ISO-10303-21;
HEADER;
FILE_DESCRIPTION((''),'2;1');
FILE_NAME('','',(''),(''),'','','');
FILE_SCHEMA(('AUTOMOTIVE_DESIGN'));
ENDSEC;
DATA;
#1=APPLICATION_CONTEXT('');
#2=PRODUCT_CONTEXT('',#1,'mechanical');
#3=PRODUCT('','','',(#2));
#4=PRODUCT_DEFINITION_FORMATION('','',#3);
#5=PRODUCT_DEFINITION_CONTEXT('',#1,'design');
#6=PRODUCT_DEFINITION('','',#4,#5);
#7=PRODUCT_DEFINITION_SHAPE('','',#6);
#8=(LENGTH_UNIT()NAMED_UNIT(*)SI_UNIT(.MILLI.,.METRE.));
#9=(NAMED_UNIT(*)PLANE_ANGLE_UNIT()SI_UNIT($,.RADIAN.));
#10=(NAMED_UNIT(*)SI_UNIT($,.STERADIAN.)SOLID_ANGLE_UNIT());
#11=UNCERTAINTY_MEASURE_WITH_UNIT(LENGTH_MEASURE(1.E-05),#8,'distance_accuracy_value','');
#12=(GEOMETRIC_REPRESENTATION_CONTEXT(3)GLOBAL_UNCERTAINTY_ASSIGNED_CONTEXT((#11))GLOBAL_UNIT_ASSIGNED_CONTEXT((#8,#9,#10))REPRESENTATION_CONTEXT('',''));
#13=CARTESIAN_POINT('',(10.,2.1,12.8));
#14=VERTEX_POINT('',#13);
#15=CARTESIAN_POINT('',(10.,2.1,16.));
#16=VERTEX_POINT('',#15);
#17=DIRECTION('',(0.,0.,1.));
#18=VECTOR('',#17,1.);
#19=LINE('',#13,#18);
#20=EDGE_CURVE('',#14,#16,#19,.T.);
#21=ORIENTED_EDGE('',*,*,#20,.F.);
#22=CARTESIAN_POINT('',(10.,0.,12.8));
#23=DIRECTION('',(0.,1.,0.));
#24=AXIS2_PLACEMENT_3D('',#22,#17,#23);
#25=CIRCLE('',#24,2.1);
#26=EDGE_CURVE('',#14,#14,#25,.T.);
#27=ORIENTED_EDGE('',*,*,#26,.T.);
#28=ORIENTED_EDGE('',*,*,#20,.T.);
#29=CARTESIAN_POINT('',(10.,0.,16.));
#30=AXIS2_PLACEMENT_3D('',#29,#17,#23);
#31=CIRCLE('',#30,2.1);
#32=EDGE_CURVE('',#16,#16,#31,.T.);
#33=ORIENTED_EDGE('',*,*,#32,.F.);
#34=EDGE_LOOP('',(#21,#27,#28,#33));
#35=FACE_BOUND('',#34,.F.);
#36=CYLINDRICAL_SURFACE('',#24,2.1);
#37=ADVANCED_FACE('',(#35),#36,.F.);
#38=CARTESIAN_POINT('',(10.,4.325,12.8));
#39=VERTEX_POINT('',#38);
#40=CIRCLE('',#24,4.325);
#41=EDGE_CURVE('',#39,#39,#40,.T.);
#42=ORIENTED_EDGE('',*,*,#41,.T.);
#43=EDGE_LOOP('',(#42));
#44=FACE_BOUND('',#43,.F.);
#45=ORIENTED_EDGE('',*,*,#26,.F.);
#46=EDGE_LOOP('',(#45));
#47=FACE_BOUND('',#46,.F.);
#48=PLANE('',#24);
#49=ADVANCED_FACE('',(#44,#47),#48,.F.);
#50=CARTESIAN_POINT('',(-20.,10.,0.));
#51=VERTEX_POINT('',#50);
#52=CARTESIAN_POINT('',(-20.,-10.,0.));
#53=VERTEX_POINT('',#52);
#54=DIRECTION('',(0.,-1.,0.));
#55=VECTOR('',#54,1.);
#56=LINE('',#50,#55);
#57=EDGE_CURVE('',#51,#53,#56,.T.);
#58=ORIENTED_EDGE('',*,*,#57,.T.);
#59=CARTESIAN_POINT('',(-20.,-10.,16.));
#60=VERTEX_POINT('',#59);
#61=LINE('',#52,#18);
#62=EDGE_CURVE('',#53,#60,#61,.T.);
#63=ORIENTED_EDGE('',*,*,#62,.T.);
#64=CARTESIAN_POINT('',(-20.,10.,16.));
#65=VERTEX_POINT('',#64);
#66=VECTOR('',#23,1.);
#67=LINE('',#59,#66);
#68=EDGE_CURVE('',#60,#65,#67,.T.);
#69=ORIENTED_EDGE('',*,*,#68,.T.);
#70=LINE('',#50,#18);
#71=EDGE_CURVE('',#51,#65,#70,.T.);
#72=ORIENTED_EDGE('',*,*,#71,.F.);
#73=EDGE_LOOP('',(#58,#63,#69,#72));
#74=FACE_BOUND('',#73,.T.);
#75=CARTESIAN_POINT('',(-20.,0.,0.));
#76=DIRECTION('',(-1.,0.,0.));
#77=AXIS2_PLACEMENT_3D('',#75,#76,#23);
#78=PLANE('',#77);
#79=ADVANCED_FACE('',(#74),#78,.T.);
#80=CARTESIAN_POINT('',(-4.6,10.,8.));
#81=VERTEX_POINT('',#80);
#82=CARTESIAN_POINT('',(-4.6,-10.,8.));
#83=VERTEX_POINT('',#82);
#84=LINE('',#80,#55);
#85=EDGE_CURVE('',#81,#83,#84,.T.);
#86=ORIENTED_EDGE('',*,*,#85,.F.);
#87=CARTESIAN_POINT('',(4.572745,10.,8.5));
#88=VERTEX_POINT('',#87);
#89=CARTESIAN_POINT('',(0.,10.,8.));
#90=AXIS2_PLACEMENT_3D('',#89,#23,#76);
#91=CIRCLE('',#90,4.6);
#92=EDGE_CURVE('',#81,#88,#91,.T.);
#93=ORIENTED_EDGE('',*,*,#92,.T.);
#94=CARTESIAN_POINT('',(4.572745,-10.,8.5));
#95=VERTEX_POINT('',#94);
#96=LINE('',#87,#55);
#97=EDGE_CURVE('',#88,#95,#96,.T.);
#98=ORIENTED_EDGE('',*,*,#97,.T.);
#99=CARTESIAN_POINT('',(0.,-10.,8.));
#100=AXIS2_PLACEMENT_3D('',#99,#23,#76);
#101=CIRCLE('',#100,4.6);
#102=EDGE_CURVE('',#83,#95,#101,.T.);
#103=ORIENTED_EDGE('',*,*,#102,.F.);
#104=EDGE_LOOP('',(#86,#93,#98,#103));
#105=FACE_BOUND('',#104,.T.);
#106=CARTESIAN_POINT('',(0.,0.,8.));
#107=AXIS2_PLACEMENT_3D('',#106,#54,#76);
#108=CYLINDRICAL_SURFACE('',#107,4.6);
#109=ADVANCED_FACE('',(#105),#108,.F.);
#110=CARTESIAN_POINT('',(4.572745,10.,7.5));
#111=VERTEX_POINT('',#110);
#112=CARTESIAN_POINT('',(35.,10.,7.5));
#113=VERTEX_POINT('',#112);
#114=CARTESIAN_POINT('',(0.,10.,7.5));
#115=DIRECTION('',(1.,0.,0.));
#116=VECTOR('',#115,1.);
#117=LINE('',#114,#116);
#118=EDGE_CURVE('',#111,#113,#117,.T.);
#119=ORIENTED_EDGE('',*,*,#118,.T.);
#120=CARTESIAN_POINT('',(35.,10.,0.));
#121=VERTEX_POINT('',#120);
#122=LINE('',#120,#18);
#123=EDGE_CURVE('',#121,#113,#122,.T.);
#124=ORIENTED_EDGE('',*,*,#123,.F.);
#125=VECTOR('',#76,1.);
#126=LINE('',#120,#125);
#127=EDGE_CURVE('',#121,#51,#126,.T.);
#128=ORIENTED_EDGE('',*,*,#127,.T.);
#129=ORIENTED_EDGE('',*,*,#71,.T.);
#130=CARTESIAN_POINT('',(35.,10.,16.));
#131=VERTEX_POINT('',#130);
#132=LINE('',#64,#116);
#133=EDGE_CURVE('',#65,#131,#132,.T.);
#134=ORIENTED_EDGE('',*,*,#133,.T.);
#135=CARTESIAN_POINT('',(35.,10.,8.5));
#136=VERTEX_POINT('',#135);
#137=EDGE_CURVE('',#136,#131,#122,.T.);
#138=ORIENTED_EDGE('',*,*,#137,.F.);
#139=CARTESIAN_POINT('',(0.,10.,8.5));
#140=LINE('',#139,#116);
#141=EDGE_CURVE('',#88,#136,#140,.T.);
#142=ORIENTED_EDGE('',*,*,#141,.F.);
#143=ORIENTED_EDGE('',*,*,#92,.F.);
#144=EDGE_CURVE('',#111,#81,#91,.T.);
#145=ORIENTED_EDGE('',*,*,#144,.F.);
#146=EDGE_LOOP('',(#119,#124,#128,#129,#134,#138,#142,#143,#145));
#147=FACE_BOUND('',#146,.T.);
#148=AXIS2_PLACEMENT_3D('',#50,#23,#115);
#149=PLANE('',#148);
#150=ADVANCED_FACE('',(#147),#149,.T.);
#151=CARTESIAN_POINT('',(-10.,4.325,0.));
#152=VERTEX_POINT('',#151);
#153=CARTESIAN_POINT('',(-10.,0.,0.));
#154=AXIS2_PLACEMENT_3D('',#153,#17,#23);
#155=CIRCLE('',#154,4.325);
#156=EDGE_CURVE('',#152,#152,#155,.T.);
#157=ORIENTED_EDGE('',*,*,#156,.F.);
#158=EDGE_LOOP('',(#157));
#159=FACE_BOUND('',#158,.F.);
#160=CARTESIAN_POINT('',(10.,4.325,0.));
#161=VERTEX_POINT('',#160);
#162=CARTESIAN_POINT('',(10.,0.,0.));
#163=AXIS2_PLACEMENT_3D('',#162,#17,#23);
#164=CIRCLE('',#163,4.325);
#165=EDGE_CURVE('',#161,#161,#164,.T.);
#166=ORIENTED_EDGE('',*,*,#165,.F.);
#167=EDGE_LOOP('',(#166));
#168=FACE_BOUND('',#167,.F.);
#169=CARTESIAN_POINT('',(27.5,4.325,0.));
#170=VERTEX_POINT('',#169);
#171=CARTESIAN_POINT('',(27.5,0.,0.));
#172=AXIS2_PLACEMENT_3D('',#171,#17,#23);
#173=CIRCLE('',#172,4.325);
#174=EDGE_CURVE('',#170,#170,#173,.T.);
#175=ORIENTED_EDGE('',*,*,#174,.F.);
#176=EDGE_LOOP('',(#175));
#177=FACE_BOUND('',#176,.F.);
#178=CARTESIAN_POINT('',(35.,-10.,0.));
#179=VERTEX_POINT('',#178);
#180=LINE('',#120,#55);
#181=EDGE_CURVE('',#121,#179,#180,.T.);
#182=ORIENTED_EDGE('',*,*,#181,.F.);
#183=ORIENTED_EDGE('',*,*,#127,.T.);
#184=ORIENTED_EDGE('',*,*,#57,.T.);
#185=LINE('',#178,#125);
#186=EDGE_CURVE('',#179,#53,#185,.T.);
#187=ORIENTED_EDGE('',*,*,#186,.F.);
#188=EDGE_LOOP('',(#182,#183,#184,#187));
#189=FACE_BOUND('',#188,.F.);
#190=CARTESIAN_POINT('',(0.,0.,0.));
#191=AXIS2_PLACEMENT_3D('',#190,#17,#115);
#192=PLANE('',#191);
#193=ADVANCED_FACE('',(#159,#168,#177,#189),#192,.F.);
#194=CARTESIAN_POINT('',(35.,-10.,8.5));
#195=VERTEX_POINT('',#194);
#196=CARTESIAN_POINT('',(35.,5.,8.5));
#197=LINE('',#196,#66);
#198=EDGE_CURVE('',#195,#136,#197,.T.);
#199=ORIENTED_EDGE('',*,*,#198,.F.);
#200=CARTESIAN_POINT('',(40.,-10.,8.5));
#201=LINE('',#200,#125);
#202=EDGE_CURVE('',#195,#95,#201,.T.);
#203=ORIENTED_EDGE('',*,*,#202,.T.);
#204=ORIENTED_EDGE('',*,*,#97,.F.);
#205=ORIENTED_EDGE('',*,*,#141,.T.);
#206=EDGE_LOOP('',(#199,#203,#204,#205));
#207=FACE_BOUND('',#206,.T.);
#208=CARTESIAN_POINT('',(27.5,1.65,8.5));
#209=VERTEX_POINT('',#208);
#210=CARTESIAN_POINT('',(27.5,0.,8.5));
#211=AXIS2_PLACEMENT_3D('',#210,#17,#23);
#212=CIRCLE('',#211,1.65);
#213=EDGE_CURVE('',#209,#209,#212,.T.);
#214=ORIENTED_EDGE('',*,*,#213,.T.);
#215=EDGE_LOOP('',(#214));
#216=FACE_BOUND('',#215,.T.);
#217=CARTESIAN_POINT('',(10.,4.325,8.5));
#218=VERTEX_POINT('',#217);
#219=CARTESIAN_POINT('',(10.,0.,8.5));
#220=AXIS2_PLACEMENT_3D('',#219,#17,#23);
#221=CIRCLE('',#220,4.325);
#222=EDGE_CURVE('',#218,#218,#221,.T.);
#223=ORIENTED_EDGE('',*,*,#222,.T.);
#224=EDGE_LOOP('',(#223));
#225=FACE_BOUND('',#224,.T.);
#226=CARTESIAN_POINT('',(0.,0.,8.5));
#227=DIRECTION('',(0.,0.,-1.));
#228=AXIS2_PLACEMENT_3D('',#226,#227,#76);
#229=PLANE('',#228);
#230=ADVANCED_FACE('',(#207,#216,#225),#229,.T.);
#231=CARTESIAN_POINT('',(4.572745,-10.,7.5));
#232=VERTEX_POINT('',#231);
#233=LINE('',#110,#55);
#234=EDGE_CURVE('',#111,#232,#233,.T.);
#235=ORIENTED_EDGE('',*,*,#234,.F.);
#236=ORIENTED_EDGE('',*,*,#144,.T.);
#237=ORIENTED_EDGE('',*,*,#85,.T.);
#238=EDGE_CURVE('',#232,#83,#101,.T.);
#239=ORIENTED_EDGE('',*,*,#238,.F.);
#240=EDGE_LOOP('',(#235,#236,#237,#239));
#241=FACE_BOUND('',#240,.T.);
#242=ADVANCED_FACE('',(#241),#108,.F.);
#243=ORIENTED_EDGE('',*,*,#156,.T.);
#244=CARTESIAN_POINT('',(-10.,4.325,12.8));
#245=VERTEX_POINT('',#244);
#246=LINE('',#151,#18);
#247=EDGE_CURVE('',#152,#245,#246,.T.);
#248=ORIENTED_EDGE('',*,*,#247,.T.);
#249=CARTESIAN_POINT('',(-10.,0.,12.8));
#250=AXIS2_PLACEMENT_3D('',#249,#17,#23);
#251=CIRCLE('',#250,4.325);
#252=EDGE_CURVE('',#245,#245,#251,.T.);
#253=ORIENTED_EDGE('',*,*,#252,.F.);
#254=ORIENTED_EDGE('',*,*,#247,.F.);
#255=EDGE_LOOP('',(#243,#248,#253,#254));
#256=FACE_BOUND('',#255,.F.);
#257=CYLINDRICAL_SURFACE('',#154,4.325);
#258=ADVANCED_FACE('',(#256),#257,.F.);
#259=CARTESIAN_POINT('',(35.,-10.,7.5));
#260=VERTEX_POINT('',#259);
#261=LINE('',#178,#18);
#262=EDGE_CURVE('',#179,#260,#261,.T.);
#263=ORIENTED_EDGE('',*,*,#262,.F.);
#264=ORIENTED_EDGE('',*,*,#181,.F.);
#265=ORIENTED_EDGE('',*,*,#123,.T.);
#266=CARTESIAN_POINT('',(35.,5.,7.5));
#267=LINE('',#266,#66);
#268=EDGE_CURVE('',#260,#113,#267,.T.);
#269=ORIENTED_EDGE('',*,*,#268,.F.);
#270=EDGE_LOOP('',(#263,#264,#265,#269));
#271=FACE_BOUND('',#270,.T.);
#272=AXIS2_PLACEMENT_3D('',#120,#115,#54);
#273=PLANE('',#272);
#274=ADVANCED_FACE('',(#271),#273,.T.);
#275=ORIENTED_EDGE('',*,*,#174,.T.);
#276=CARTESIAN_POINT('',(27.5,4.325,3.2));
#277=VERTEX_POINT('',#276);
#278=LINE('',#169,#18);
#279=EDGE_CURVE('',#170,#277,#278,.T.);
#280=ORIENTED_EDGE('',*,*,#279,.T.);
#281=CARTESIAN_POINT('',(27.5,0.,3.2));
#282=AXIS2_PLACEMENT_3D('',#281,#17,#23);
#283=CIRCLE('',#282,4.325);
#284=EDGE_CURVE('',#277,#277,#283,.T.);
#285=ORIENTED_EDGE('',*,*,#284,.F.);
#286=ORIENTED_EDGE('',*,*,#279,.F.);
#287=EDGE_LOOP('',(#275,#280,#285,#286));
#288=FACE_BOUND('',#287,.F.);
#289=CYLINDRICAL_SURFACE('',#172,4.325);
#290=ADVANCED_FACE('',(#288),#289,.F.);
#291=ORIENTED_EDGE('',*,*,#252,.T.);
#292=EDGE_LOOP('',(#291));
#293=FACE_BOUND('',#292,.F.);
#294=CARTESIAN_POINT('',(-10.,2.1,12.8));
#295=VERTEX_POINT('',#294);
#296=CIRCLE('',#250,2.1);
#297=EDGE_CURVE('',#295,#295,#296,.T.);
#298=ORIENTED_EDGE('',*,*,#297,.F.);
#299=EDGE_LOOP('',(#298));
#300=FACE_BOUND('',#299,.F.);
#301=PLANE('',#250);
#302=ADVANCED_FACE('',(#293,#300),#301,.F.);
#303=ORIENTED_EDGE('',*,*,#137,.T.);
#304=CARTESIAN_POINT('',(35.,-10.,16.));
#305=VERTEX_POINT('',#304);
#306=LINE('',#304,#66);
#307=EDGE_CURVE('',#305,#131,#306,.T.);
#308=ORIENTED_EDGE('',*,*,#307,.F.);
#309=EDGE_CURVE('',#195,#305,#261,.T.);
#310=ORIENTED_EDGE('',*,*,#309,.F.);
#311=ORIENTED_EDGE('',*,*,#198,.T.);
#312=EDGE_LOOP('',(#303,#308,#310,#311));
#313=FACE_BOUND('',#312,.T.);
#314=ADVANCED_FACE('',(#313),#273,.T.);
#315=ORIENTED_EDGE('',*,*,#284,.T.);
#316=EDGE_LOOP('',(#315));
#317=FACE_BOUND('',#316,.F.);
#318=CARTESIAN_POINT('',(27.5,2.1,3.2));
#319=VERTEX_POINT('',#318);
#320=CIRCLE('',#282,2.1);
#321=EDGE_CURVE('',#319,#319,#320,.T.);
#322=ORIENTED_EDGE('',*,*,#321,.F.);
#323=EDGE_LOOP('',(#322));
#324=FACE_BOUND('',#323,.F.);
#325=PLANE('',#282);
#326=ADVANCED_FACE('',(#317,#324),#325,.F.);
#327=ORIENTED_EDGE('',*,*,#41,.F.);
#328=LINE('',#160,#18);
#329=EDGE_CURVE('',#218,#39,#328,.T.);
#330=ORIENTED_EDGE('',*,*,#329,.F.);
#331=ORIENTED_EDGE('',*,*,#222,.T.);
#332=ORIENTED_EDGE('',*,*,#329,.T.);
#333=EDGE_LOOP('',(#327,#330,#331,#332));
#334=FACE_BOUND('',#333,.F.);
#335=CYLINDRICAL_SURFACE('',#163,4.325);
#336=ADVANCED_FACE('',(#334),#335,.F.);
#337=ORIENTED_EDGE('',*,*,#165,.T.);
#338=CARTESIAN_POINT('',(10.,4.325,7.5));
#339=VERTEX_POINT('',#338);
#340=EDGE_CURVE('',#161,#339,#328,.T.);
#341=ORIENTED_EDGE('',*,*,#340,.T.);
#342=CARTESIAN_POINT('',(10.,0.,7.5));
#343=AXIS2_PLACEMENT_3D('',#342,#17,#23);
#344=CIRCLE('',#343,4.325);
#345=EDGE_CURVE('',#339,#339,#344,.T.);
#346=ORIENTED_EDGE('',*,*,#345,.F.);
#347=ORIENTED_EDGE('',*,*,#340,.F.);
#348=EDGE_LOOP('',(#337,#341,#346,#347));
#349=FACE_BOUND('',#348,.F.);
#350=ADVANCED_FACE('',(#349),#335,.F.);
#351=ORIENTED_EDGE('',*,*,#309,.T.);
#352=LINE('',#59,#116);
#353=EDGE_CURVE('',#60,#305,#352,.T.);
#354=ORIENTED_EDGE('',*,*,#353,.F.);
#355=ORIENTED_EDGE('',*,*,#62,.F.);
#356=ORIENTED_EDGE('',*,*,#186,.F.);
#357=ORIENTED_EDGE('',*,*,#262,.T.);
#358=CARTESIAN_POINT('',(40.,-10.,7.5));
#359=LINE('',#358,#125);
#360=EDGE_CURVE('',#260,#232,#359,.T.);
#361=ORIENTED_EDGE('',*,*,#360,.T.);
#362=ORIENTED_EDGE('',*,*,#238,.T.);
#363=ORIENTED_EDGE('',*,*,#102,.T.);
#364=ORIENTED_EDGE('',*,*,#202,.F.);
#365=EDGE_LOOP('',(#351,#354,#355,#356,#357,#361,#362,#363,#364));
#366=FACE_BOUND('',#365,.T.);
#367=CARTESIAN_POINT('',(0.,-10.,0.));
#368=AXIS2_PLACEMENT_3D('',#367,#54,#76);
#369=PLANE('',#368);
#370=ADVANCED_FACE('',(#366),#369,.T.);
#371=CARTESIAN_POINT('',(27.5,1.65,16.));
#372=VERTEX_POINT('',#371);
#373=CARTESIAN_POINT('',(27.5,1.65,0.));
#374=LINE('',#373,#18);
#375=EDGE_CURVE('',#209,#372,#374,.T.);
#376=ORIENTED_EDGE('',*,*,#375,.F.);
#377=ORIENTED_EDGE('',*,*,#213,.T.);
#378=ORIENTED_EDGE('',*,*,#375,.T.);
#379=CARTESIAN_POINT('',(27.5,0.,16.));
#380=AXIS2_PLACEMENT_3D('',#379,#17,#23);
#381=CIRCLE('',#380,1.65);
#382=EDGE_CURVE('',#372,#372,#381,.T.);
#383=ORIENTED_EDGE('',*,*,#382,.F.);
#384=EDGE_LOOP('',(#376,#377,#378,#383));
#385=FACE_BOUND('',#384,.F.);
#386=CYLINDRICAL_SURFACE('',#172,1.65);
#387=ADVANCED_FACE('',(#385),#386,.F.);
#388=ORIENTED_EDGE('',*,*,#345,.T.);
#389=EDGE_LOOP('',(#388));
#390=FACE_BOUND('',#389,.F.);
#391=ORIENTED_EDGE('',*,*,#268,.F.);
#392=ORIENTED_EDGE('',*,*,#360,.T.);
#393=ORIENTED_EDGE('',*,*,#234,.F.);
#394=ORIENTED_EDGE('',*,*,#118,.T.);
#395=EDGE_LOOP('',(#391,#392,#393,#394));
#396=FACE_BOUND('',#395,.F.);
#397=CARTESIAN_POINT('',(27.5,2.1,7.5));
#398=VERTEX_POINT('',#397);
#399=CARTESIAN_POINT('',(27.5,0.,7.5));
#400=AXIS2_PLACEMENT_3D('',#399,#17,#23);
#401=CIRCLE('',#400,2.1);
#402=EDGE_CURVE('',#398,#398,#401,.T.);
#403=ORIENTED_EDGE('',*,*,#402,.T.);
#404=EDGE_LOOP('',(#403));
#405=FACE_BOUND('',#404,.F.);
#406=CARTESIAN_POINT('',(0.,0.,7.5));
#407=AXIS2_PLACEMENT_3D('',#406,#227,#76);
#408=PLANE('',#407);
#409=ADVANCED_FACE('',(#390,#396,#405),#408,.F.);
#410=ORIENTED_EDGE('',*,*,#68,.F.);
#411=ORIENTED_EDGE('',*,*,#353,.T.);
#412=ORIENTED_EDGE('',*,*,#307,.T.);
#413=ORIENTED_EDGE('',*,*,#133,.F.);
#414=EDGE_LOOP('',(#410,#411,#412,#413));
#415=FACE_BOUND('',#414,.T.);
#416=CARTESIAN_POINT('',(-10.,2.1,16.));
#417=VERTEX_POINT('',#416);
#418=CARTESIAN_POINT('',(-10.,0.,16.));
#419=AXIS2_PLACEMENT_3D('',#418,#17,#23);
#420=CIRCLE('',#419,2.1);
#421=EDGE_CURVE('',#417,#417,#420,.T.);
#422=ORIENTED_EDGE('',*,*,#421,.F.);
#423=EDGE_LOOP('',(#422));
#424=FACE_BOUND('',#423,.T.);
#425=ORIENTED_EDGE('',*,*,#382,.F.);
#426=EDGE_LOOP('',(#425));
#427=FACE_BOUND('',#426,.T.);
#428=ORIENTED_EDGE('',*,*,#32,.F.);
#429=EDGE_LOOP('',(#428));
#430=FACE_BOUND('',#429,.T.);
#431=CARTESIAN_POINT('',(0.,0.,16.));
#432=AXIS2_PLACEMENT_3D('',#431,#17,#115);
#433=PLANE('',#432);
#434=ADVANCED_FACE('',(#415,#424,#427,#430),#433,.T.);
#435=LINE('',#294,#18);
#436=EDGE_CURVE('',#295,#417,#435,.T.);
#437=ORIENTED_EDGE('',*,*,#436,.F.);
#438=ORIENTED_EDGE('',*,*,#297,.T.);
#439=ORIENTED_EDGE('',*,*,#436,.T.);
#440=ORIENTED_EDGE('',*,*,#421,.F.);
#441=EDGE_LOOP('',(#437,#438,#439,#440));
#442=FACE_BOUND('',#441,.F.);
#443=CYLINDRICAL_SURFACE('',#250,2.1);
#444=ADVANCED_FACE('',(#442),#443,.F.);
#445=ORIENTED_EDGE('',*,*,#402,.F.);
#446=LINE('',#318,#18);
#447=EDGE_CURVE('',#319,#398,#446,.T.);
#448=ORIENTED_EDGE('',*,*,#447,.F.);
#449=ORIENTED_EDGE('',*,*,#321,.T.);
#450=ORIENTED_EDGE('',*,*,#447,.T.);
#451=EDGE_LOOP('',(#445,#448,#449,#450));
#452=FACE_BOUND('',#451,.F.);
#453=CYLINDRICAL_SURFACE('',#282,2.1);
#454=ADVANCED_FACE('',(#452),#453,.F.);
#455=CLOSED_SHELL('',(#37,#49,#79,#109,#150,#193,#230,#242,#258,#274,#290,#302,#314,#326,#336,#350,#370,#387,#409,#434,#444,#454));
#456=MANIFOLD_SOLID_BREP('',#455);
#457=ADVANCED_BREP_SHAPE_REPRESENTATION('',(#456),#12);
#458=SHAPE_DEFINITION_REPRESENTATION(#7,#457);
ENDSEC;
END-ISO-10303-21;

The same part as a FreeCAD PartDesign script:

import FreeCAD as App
import Part
import Sketcher

V = App.Vector


def add_polygon(sketch, points):
    """Adds a closed chain of lines whose ends are joined by coincident constraints."""
    first, n = sketch.GeometryCount, len(points)
    for a, b in zip(points, points[1:] + points[:1]):
        sketch.addGeometry(Part.LineSegment(App.Vector(*a, 0), App.Vector(*b, 0)), False)
    for i in range(n):
        sketch.addConstraint(Sketcher.Constraint("Coincident", first + i, 2, first + (i + 1) % n, 1))

doc = App.newDocument("Part")
body = doc.addObject("PartDesign::Body", "Body")

# Sketch on XY plane
sketch1 = doc.addObject("Sketcher::SketchObject", "Sketch")
body.addObject(sketch1)
sketch1.AttachmentSupport = (doc.XY_Plane, [""])
sketch1.MapMode = "FlatFace"
add_polygon(sketch1, [(-20, 10), (-20, -10), (35, -10), (35, 10)])  # lines 0-3
sketch1.addConstraint([
    Sketcher.Constraint("Vertical", 0),
    Sketcher.Constraint("Horizontal", 1),
    Sketcher.Constraint("Vertical", 2),
    Sketcher.Constraint("Horizontal", 3),
    Sketcher.Constraint("DistanceX", 1, 1, 1, 2, 55.0),
    Sketcher.Constraint("DistanceY", 0, 2, 0, 1, 20.0),
    Sketcher.Constraint("DistanceX", 0, 2, -1, 1, 20.0),
    Sketcher.Constraint("DistanceY", 0, 2, -1, 1, 10.0),
])
pad1 = doc.addObject("PartDesign::Pad", "Pad")
body.addObject(pad1)
pad1.Profile = sketch1
pad1.Length = 16

# Sketch on XY plane
sketch2 = doc.addObject("Sketcher::SketchObject", "Sketch001")
body.addObject(sketch2)
sketch2.AttachmentSupport = (doc.XY_Plane, [""])
sketch2.MapMode = "FlatFace"
sketch2.addGeometry([
    Part.Circle(V(-10, 0, 0), V(0, 0, 1), 2.1),
    Part.Circle(V(10, 0, 0), V(0, 0, 1), 2.1),
], False)
sketch2.addConstraint([
    Sketcher.Constraint("Equal", 0, 1),
    Sketcher.Constraint("Symmetric", 0, 3, 1, 3, -1, 1),
    Sketcher.Constraint("PointOnObject", 0, 3, -1),
    Sketcher.Constraint("Diameter", 0, 4.2),
    Sketcher.Constraint("DistanceX", 0, 3, -1, 1, 10.0),
])
doc.recompute()
hole = doc.addObject("PartDesign::Hole", "Hole")
body.addObject(hole)
hole.Profile = sketch2
hole.ThreadType = "None"
hole.Diameter = 4.2
hole.DepthType = "ThroughAll"
hole.HoleCutType = "Counterbore"
hole.HoleCutDiameter = 8.65
hole.HoleCutDepth = 12.8
hole.Reversed = True

# Sketch on XY plane
sketch3 = doc.addObject("Sketcher::SketchObject", "Sketch002")
body.addObject(sketch3)
sketch3.AttachmentSupport = (doc.XY_Plane, [""])
sketch3.MapMode = "FlatFace"
sketch3.addGeometry(Part.Circle(V(27.5, 0, 0), V(0, 0, 1), 2.1), False)
sketch3.addConstraint([
    Sketcher.Constraint("PointOnObject", 0, 3, -1),
    Sketcher.Constraint("Diameter", 0, 4.2),
    Sketcher.Constraint("DistanceX", -1, 1, 0, 3, 27.5),
])
doc.recompute()
hole2 = doc.addObject("PartDesign::Hole", "Hole001")
body.addObject(hole2)
hole2.Profile = sketch3
hole2.ThreadType = "None"
hole2.Diameter = 4.2
hole2.DepthType = "Dimension"
hole2.Depth = 8
hole2.DrillPoint = "Angled"
hole2.DrillPointAngle = 118
hole2.HoleCutType = "Counterbore"
hole2.HoleCutDiameter = 8.65
hole2.HoleCutDepth = 3.2
hole2.Reversed = True

# Sketch on XY plane
sketch4 = doc.addObject("Sketcher::SketchObject", "Sketch003")
body.addObject(sketch4)
sketch4.AttachmentSupport = (doc.XY_Plane, [""])
sketch4.MapMode = "FlatFace"
sketch4.AttachmentOffset = App.Placement(V(0, 0, 8), App.Rotation())
add_polygon(sketch4, [(40, -10), (0, -10), (0, 10), (40, 10)])  # lines 0-3
sketch4.addConstraint([
    Sketcher.Constraint("Horizontal", 0),
    Sketcher.Constraint("Vertical", 1),
    Sketcher.Constraint("Horizontal", 2),
    Sketcher.Constraint("Vertical", 3),
    Sketcher.Constraint("Symmetric", 0, 2, 1, 2, -1, 1),
    Sketcher.Constraint("DistanceX", 0, 2, 0, 1, 40.0),
    Sketcher.Constraint("DistanceY", 1, 1, 1, 2, 20.0),
])
pocket1 = doc.addObject("PartDesign::Pocket", "Pocket")
body.addObject(pocket1)
pocket1.Profile = sketch4
pocket1.Length = 1
pocket1.Midplane = True

# Sketch on XZ plane
sketch5 = doc.addObject("Sketcher::SketchObject", "Sketch004")
body.addObject(sketch5)
sketch5.AttachmentSupport = (doc.XZ_Plane, [""])
sketch5.MapMode = "FlatFace"
sketch5.addGeometry(Part.Circle(V(0, 8, 0), V(0, 0, 1), 4.6), False)
sketch5.addConstraint([
    Sketcher.Constraint("PointOnObject", 0, 3, -2),
    Sketcher.Constraint("Diameter", 0, 9.2),
    Sketcher.Constraint("DistanceY", -1, 1, 0, 3, 8.0),
])
pocket2 = doc.addObject("PartDesign::Pocket", "Pocket001")
body.addObject(pocket2)
pocket2.Profile = sketch5
pocket2.Length = 20
pocket2.Midplane = True

# Sketch on XY plane
sketch6 = doc.addObject("Sketcher::SketchObject", "Sketch005")
body.addObject(sketch6)
sketch6.AttachmentSupport = (doc.XY_Plane, [""])
sketch6.MapMode = "FlatFace"
sketch6.addGeometry(Part.Circle(V(27.5, 0, 0), V(0, 0, 1), 1.65), False)
sketch6.addConstraint([
    Sketcher.Constraint("PointOnObject", 0, 3, -1),
    Sketcher.Constraint("Diameter", 0, 3.3),
    Sketcher.Constraint("DistanceX", -1, 1, 0, 3, 27.5),
])
doc.recompute()
hole3 = doc.addObject("PartDesign::Hole", "Hole002")
body.addObject(hole3)
hole3.Profile = sketch6
hole3.ThreadType = "None"
hole3.Diameter = 3.3
hole3.DepthType = "ThroughAll"
hole3.Reversed = True

doc.recompute()
